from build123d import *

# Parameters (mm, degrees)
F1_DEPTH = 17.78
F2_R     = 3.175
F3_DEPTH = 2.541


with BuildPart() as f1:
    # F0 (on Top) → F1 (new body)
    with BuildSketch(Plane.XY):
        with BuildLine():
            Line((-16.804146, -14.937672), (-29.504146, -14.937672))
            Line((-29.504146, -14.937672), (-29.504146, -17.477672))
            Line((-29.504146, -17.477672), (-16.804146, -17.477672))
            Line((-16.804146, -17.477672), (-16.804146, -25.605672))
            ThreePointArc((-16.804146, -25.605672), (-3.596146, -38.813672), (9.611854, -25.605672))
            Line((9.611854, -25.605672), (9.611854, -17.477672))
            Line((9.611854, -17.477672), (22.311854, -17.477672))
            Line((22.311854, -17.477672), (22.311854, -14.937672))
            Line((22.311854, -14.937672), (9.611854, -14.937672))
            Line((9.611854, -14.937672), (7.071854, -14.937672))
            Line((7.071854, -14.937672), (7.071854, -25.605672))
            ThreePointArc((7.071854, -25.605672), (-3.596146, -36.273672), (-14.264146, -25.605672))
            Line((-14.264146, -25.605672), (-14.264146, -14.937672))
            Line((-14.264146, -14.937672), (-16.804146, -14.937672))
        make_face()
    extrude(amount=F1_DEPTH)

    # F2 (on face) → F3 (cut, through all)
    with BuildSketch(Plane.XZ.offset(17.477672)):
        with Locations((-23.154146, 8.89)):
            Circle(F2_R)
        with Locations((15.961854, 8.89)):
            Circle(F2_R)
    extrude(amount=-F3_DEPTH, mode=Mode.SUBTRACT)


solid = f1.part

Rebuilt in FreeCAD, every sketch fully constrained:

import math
import FreeCAD as App
import Part
import Sketcher
Q = App.Units.Quantity

doc = App.newDocument("Part")
body = doc.addObject("PartDesign::Body", "Body")

# Sketch on XY plane
sketch1 = body.newObject("Sketcher::SketchObject", "Sketch")
sketch1.AttachmentSupport = (doc.getObject("XY_Plane"), [""])
sketch1.MapMode = "FlatFace"
sketch1.addGeometry(Part.LineSegment(App.Vector(-29.5, -14.9, 0), App.Vector(-29.5, -17.5, 0)), False)
sketch1.addGeometry(Part.LineSegment(App.Vector(-29.5, -17.5, 0), App.Vector(-16.8, -17.5, 0)), False)
sketch1.addGeometry(Part.LineSegment(App.Vector(-16.8, -17.5, 0), App.Vector(-16.8, -25.6, 0)), False)
sketch1.addGeometry(Part.ArcOfCircle(Part.Circle(App.Vector(-3.6, -25.6, 0), App.Vector(0, 0, 1), 13.2), math.radians(180), math.radians(360)), False)
sketch1.addGeometry(Part.LineSegment(App.Vector(9.6, -25.6, 0), App.Vector(9.6, -17.5, 0)), False)
sketch1.addGeometry(Part.LineSegment(App.Vector(9.6, -17.5, 0), App.Vector(22.3, -17.5, 0)), False)
sketch1.addGeometry(Part.LineSegment(App.Vector(22.3, -17.5, 0), App.Vector(22.3, -14.9, 0)), False)
sketch1.addGeometry(Part.LineSegment(App.Vector(22.3, -14.9, 0), App.Vector(7.1, -14.9, 0)), False)
sketch1.addGeometry(Part.LineSegment(App.Vector(7.1, -14.9, 0), App.Vector(7.1, -25.6, 0)), False)
sketch1.addGeometry(Part.ArcOfCircle(Part.Circle(App.Vector(-3.6, -25.6, 0), App.Vector(0, 0, 1), 10.7), math.radians(180), math.radians(360)), False)
sketch1.addGeometry(Part.LineSegment(App.Vector(-14.3, -25.6, 0), App.Vector(-14.3, -14.9, 0)), False)
sketch1.addGeometry(Part.LineSegment(App.Vector(-14.3, -14.9, 0), App.Vector(-29.5, -14.9, 0)), False)
sketch1.addConstraint(Sketcher.Constraint("Coincident", 0, 2, 1, 1))
sketch1.addConstraint(Sketcher.Constraint("Coincident", 1, 2, 2, 1))
sketch1.addConstraint(Sketcher.Constraint("Tangent", 2, 2, 3, 1))
sketch1.addConstraint(Sketcher.Constraint("Tangent", 3, 2, 4, 1))
sketch1.addConstraint(Sketcher.Constraint("Coincident", 4, 2, 5, 1))
sketch1.addConstraint(Sketcher.Constraint("Coincident", 5, 2, 6, 1))
sketch1.addConstraint(Sketcher.Constraint("Coincident", 6, 2, 7, 1))
sketch1.addConstraint(Sketcher.Constraint("Coincident", 7, 2, 8, 1))
sketch1.addConstraint(Sketcher.Constraint("Tangent", 8, 2, 9, 2))
sketch1.addConstraint(Sketcher.Constraint("Tangent", 9, 1, 10, 1))
sketch1.addConstraint(Sketcher.Constraint("Coincident", 10, 2, 11, 1))
sketch1.addConstraint(Sketcher.Constraint("Coincident", 11, 2, 0, 1))
sketch1.addConstraint(Sketcher.Constraint("Vertical", 0))
sketch1.addConstraint(Sketcher.Constraint("Horizontal", 1))
sketch1.addConstraint(Sketcher.Constraint("Vertical", 2))
sketch1.addConstraint(Sketcher.Constraint("Vertical", 4))
sketch1.addConstraint(Sketcher.Constraint("Horizontal", 5))
sketch1.addConstraint(Sketcher.Constraint("Vertical", 6))
sketch1.addConstraint(Sketcher.Constraint("Horizontal", 7))
sketch1.addConstraint(Sketcher.Constraint("Vertical", 8))
sketch1.addConstraint(Sketcher.Constraint("Vertical", 10))
sketch1.addConstraint(Sketcher.Constraint("Horizontal", 11))
sketch1.addConstraint(Sketcher.Constraint("Coincident", 9, 3, 3, 3))
sketch1.addConstraint(Sketcher.Constraint("Horizontal", 1, 2, 4, 2))
sketch1.addConstraint(Sketcher.Constraint("Horizontal", 7, 2, 10, 2))
sketch1.addConstraint(Sketcher.Constraint("Equal", 1, 5))
sketch1.addConstraint(Sketcher.Constraint("Radius", 3, Q("0.52 in")))
sketch1.addConstraint(Sketcher.Constraint("Radius", 9, Q("0.42 in")))
sketch1.addConstraint(Sketcher.Constraint("DistanceX", 1, 1, 1, 2, Q("0.5 in")))
sketch1.addConstraint(Sketcher.Constraint("DistanceY", 0, 2, 0, 1, Q("0.1 in")))
sketch1.addConstraint(Sketcher.Constraint("DistanceY", 2, 2, 2, 1, Q("0.32 in")))
sketch1.addConstraint(Sketcher.Constraint("DistanceY", 3, 3, -1, 1, Q("25.605672 mm")))
sketch1.addConstraint(Sketcher.Constraint("DistanceX", 3, 3, -1, 1, Q("3.596146 mm")))
pad1 = body.newObject("PartDesign::Pad", "Pad")
pad1.Profile = sketch1
pad1.Length = Q("0.7 in")

# Sketch on XZ plane
sketch2 = body.newObject("Sketcher::SketchObject", "Sketch001")
sketch2.AttachmentSupport = (doc.getObject("XZ_Plane"), [""])
sketch2.MapMode = "FlatFace"
sketch2.AttachmentOffset = App.Placement(App.Vector(0, 0, 17.477672), App.Rotation())
sketch2.addGeometry(Part.Circle(App.Vector(-23.2, 8.9, 0), App.Vector(0, 0, 1), 3.2), False)
sketch2.addGeometry(Part.Circle(App.Vector(16, 8.9, 0), App.Vector(0, 0, 1), 3.2), False)
sketch2.addConstraint(Sketcher.Constraint("Equal", 0, 1))
sketch2.addConstraint(Sketcher.Constraint("Horizontal", 0, 3, 1, 3))
sketch2.addConstraint(Sketcher.Constraint("Diameter", 0, Q("0.25 in")))
sketch2.addConstraint(Sketcher.Constraint("DistanceY", -1, 1, 0, 3, Q("0.35 in")))
sketch2.addConstraint(Sketcher.Constraint("DistanceX", 0, 3, 1, 3, Q("1.54 in")))
sketch2.addConstraint(Sketcher.Constraint("DistanceX", 0, 3, -1, 1, Q("23.154146 mm")))
pocket1 = body.newObject("PartDesign::Pocket", "Pocket")
pocket1.Profile = sketch2
pocket1.Type = "ThroughAll"

doc.recompute()
